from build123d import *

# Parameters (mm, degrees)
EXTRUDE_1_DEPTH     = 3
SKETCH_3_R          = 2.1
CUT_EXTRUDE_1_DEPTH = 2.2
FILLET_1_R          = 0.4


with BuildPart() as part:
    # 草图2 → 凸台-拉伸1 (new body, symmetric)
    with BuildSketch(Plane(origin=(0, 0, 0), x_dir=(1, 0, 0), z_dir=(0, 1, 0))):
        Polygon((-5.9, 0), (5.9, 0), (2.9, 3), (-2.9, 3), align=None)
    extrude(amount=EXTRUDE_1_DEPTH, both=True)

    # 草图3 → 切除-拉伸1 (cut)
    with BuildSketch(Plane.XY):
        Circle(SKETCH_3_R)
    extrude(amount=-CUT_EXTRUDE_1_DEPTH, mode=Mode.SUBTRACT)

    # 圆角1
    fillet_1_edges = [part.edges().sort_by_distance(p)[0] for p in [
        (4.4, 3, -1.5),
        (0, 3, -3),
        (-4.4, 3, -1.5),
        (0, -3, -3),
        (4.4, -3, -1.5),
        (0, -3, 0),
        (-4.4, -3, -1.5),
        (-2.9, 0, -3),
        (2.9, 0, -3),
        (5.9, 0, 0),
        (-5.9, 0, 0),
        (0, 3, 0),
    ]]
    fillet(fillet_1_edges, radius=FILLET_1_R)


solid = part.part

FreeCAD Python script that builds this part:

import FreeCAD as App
import Part
import Sketcher
from FreeCAD import Vector
Q = App.Units.Quantity


def edges_at(feature, points):
    """Names of the edges that pass closest to the given points."""
    edges = feature.Shape.Edges
    near = lambda p: min(range(len(edges)), key=lambda i: edges[i].distToShape(Part.Vertex(*p))[0])
    return sorted({f"Edge{near(p) + 1}" for p in points})


def add_polygon(sketch, points):
    """Adds a closed chain of lines whose ends are joined by coincident constraints."""
    first, n = sketch.GeometryCount, len(points)
    for a, b in zip(points, points[1:] + points[:1]):
        sketch.addGeometry(Part.LineSegment(App.Vector(*a, 0), App.Vector(*b, 0)), False)
    for i in range(n):
        sketch.addConstraint(Sketcher.Constraint("Coincident", first + i, 2, first + (i + 1) % n, 1))

doc = App.newDocument("Part")
body = doc.addObject("PartDesign::Body", "Body")

sketch1 = body.newObject("Sketcher::SketchObject", "Sketch")
sketch1.AttachmentSupport = (doc.getObject("XZ_Plane"), [""])
sketch1.MapMode = "FlatFace"
add_polygon(sketch1, [(-5.9, 0), (5.9, 0), (2.9, -3), (-2.9, -3)])
sketch1.addConstraint(Sketcher.Constraint("Horizontal", 0))
sketch1.addConstraint(Sketcher.Constraint("Horizontal", 2))
sketch1.addConstraint(Sketcher.Constraint("Symmetric", 0, 2, 3, 2, -1, 1))
sketch1.addConstraint(Sketcher.Constraint("Perpendicular", 1, 3))
sketch1.addConstraint(Sketcher.Constraint("Equal", 1, 3))
sketch1.addConstraint(Sketcher.Constraint("DistanceX", 0, 1, 0, 2, Q("11.8 mm")))
sketch1.addConstraint(Sketcher.Constraint("DistanceX", 2, 2, 2, 1, Q("5.8 mm")))
pad1 = body.newObject("PartDesign::Pad", "Pad")
pad1.Profile = sketch1
pad1.Length = 6
pad1.Midplane = True

sketch2 = body.newObject("Sketcher::SketchObject", "Sketch001")
sketch2.AttachmentSupport = (doc.getObject("XY_Plane"), [""])
sketch2.MapMode = "FlatFace"
sketch2.addGeometry(Part.Circle(Vector(0, 0, 0), Vector(0, 0, 1), 2.1), False)
sketch2.addConstraint(Sketcher.Constraint("Coincident", 0, 3, -1, 1))
sketch2.addConstraint(Sketcher.Constraint("Diameter", 0, Q("4.2 mm")))
pocket1 = body.newObject("PartDesign::Pocket", "Pocket")
pocket1.Profile = sketch2
pocket1.Length = 2.2
doc.recompute()

fillet = body.newObject("PartDesign::Fillet", "Fillet")
fillet.Base = (pocket1, edges_at(pocket1, [
    (4.4, 3, -1.5),
    (0, 3, -3),
    (-4.4, 3, -1.5),
    (0, -3, -3),
    (4.4, -3, -1.5),
    (0, -3, 0),
    (-4.4, -3, -1.5),
    (-2.9, 0, -3),
    (2.9, 0, -3),
    (5.9, 0, 0),
    (-5.9, 0, 0),
    (0, 3, 0),
]))
fillet.Radius = 0.4

doc.recompute()
